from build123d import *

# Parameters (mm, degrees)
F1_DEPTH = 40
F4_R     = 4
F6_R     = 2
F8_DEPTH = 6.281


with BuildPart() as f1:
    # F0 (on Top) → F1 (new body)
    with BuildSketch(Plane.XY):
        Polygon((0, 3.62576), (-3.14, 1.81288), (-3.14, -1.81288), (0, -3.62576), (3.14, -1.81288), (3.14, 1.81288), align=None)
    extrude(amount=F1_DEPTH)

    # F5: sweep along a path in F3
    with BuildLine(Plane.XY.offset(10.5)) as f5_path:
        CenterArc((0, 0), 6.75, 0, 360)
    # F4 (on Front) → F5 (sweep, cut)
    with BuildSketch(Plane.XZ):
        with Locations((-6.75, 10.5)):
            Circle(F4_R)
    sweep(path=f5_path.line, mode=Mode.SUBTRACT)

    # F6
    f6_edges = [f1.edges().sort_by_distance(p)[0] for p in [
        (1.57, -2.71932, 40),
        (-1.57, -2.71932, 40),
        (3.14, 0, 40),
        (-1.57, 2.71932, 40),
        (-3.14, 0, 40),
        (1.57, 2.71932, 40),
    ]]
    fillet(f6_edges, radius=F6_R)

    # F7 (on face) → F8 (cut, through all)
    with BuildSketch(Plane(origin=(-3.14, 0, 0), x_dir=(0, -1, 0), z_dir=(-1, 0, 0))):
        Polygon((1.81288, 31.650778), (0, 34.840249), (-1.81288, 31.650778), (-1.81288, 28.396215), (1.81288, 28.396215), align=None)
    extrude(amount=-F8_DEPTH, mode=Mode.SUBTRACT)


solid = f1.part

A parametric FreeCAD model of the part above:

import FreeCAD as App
import Part
import Sketcher
Q = App.Units.Quantity


def edges_at(feature, points):
    """Names of the edges that pass closest to the given points."""
    edges = feature.Shape.Edges
    near = lambda p: min(range(len(edges)), key=lambda i: edges[i].distToShape(Part.Vertex(*p))[0])
    return sorted({f"Edge{near(p) + 1}" for p in points})


def add_polygon(sketch, points):
    """Adds a closed chain of lines whose ends are joined by coincident constraints."""
    first, n = sketch.GeometryCount, len(points)
    for a, b in zip(points, points[1:] + points[:1]):
        sketch.addGeometry(Part.LineSegment(App.Vector(*a, 0), App.Vector(*b, 0)), False)
    for i in range(n):
        sketch.addConstraint(Sketcher.Constraint("Coincident", first + i, 2, first + (i + 1) % n, 1))

doc = App.newDocument("Part")
body = doc.addObject("PartDesign::Body", "Body")

# Sketch on XY plane
sketch1 = doc.addObject("Sketcher::SketchObject", "Sketch")
body.addObject(sketch1)
sketch1.AttachmentSupport = (doc.XY_Plane, [""])
sketch1.MapMode = "FlatFace"
add_polygon(sketch1, [(0, 3.6), (-3.1, 1.8), (-3.1, -1.8), (0, -3.6), (3.1, -1.8), (3.1, 1.8)])  # lines 0-5
sketch1.addConstraint(Sketcher.Constraint("Vertical", 1))
sketch1.addConstraint(Sketcher.Constraint("Vertical", 4))
sketch1.addConstraint(Sketcher.Constraint("Symmetric", 0, 2, 3, 2, -1, 1))
sketch1.addConstraint(Sketcher.Constraint("Symmetric", 2, 2, 5, 2, -1, 1))
sketch1.addConstraint(Sketcher.Constraint("PointOnObject", 2, 2, -2))
sketch1.addConstraint(Sketcher.Constraint("Parallel", 2, 5))
sketch1.addConstraint(Sketcher.Constraint("Horizontal", 1, 2, 3, 2))
sketch1.addConstraint(Sketcher.Constraint("Angle", 0, Q("-149.999998 deg")))
sketch1.addConstraint(Sketcher.Constraint("DistanceX", 0, 2, -1, 1, Q("3.14 mm")))
sketch1.addConstraint(Sketcher.Constraint("DistanceY", 1, 2, 1, 1, Q("3.62576 mm")))
pad1 = doc.addObject("PartDesign::Pad", "Pad")
body.addObject(pad1)
pad1.Profile = sketch1
pad1.Length = 40

# Sketch on XZ plane
sketch2 = doc.addObject("Sketcher::SketchObject", "Sketch001")
body.addObject(sketch2)
sketch2.AttachmentSupport = (doc.XZ_Plane, [""])
sketch2.MapMode = "FlatFace"
sketch2.addGeometry(Part.Circle(App.Vector(-6.8, 10.5, 0), App.Vector(0, 0, 1), 4), False)
sketch2.addConstraint(Sketcher.Constraint("Diameter", 0, Q("8 mm")))
sketch2.addConstraint(Sketcher.Constraint("DistanceY", -1, 1, 0, 3, Q("10.5 mm")))
sketch2.addConstraint(Sketcher.Constraint("DistanceX", 0, 3, -1, 1, Q("6.75 mm")))

# Sketch on XY plane
sketch3 = doc.addObject("Sketcher::SketchObject", "Sketch002")
body.addObject(sketch3)
sketch3.AttachmentSupport = (doc.XY_Plane, [""])
sketch3.MapMode = "FlatFace"
sketch3.AttachmentOffset = App.Placement(App.Vector(0, 0, 10.5), App.Rotation())
sketch3.addGeometry(Part.Circle(App.Vector(0, 0, 0), App.Vector(0, 0, 1), 7), False)
sketch3.addConstraint(Sketcher.Constraint("Coincident", 0, 3, -1, 1))
sketch3.addConstraint(Sketcher.Constraint("Diameter", 0, Q("13.5 mm")))
doc.recompute()

subtractivepipe = doc.addObject("PartDesign::SubtractivePipe", "SubtractivePipe")
body.addObject(subtractivepipe)
subtractivepipe.Profile = sketch2
subtractivepipe.Spine = (sketch3, ["Edge1"])
doc.recompute()

fillet = doc.addObject("PartDesign::Fillet", "Fillet")
body.addObject(fillet)
fillet.Base = (subtractivepipe, edges_at(subtractivepipe, [
    (1.57, -2.719, 40),
    (-1.57, -2.719, 40),
    (3.14, 0, 40),
    (-1.57, 2.719, 40),
    (-3.14, 0, 40),
    (1.57, 2.719, 40),
]))
fillet.Radius = 2

# Sketch on YZ plane
sketch4 = doc.addObject("Sketcher::SketchObject", "Sketch003")
body.addObject(sketch4)
sketch4.AttachmentSupport = (doc.YZ_Plane, [""])
sketch4.MapMode = "FlatFace"
sketch4.AttachmentOffset = App.Placement(App.Vector(0, 0, -3.14), App.Rotation())
add_polygon(sketch4, [(-1.8, 31.7), (0, 34.8), (1.8, 31.7), (1.8, 28.4), (-1.8, 28.4)])  # lines 0-4
sketch4.addConstraint(Sketcher.Constraint("Vertical", 2))
sketch4.addConstraint(Sketcher.Constraint("Horizontal", 3))
sketch4.addConstraint(Sketcher.Constraint("Vertical", 4))
sketch4.addConstraint(Sketcher.Constraint("Symmetric", 1, 2, 4, 2, -2))
sketch4.addConstraint(Sketcher.Constraint("PointOnObject", 0, 2, -2))
sketch4.addConstraint(Sketcher.Constraint("DistanceX", 3, 2, 3, 1, Q("3.62576 mm")))
sketch4.addConstraint(Sketcher.Constraint("DistanceY", 2, 2, 2, 1, Q("3.254563 mm")))
sketch4.addConstraint(Sketcher.Constraint("DistanceY", -1, 1, 0, 2, Q("34.840249 mm")))
sketch4.addConstraint(Sketcher.Constraint("DistanceY", 1, 2, 0, 2, Q("3.189471 mm")))
pocket1 = doc.addObject("PartDesign::Pocket", "Pocket")
body.addObject(pocket1)
pocket1.Profile = sketch4
pocket1.Type = "ThroughAll"
pocket1.Reversed = True

doc.recompute()
